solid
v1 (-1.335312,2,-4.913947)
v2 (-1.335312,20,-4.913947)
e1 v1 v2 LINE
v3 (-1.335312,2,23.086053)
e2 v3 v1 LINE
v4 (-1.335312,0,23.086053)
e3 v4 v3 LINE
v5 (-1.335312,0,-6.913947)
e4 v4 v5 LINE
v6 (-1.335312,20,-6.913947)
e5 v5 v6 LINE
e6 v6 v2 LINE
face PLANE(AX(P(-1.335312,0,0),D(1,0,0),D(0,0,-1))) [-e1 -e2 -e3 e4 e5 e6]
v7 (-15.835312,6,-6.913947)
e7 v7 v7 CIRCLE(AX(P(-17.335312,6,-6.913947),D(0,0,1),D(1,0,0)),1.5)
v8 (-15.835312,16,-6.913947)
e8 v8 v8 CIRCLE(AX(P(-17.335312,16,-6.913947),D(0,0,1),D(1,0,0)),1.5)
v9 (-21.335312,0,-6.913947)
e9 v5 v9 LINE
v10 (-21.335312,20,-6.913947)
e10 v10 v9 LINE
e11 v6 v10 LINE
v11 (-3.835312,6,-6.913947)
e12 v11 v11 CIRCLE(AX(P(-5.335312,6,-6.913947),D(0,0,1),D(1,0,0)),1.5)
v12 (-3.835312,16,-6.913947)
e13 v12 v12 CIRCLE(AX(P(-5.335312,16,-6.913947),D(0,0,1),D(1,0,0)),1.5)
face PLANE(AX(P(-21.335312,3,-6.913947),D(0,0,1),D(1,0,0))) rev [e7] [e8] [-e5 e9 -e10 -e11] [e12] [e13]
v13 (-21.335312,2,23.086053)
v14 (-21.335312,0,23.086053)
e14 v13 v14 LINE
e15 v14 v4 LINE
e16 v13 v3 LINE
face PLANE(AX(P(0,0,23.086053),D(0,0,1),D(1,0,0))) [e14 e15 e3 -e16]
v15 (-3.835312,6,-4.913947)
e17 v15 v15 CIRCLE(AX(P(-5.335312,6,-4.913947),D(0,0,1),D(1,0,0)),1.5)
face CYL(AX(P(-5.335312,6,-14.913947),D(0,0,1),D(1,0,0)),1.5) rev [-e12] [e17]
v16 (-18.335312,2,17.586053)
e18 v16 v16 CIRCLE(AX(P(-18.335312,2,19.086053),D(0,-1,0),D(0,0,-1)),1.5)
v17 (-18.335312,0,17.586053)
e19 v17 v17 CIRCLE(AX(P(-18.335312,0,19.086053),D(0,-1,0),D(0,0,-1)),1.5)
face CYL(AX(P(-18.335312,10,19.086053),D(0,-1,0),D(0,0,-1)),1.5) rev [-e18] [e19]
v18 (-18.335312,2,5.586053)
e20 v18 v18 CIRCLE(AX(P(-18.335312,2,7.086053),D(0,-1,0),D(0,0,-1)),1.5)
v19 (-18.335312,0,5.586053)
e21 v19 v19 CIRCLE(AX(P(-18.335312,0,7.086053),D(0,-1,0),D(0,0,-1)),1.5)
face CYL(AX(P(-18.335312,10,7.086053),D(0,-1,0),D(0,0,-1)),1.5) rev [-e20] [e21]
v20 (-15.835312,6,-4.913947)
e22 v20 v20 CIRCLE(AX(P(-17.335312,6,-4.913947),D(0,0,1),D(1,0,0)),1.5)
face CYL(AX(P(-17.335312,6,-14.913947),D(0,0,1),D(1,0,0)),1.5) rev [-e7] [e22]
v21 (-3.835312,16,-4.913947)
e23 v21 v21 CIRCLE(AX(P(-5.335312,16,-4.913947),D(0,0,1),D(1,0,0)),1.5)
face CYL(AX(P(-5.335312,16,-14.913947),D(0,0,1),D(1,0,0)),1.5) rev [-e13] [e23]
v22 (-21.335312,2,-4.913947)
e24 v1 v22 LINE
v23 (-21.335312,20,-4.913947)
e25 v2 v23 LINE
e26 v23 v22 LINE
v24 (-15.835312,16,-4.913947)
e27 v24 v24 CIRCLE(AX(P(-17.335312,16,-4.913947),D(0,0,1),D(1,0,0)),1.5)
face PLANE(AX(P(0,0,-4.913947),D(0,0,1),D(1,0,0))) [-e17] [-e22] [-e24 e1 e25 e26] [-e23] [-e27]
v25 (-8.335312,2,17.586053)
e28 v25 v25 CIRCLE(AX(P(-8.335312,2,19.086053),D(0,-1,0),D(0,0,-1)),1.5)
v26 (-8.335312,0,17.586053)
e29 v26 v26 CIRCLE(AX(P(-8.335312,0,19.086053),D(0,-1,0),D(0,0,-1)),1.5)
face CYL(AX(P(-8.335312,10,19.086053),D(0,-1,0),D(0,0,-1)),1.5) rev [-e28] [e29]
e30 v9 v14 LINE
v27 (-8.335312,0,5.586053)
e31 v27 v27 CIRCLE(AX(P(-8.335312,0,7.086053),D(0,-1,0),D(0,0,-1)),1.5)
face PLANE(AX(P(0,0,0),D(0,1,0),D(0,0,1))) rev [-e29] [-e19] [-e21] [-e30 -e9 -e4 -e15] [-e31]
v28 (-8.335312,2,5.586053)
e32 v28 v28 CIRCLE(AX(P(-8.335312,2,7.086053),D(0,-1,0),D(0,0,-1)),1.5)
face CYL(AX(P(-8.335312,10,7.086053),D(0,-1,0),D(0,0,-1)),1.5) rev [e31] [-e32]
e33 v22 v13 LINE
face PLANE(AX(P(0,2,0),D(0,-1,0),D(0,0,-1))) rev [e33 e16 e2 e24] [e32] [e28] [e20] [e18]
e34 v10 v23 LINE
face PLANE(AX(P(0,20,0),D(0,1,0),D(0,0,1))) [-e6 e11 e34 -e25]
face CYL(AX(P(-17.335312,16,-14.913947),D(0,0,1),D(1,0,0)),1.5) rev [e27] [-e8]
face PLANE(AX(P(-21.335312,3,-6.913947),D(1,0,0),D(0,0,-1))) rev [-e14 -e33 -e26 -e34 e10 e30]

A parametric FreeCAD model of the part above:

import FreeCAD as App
import Part
import Sketcher
Q = App.Units.Quantity

doc = App.newDocument("Part")
body = doc.addObject("PartDesign::Body", "Body")

# Sketch on XZ plane
sketch1 = body.newObject("Sketcher::SketchObject", "Sketch")
sketch1.AttachmentSupport = (doc.getObject("XZ_Plane"), [""])
sketch1.MapMode = "FlatFace"
sketch1.addGeometry([
    Part.LineSegment(App.Vector(-21, -7, 0), App.Vector(-21, 33, 0)),
    Part.LineSegment(App.Vector(-21, 33, 0), App.Vector(9, 33, 0)),
    Part.LineSegment(App.Vector(9, 33, 0), App.Vector(9, -7, 0)),
    Part.LineSegment(App.Vector(9, -7, 0), App.Vector(-21, -7, 0)),
], False)
sketch1.addConstraint([
    Sketcher.Constraint("Coincident", 0, 2, 1, 1),
    Sketcher.Constraint("Coincident", 1, 2, 2, 1),
    Sketcher.Constraint("Coincident", 2, 2, 3, 1),
    Sketcher.Constraint("Coincident", 3, 2, 0, 1),
    Sketcher.Constraint("Vertical", 0),
    Sketcher.Constraint("Horizontal", 1),
    Sketcher.Constraint("Vertical", 2),
    Sketcher.Constraint("Horizontal", 3),
    Sketcher.Constraint("DistanceX", 1, 1, 1, 2, Q("30 mm")),
    Sketcher.Constraint("DistanceY", 0, 1, 0, 2, Q("40 mm")),
    Sketcher.Constraint("DistanceX", 0, 2, -1, 1, Q("21.335312 mm")),
    Sketcher.Constraint("DistanceY", -1, 1, 0, 2, Q("33.086053 mm")),
])
pad1 = body.newObject("PartDesign::Pad", "Pad")
pad1.Profile = sketch1
pad1.Length = 3
pad1.Reversed = True

# Sketch on XZ plane
sketch2 = body.newObject("Sketcher::SketchObject", "Sketch001")
sketch2.AttachmentSupport = (doc.getObject("XZ_Plane"), [""])
sketch2.MapMode = "FlatFace"
sketch2.AttachmentOffset = App.Placement(App.Vector(0, 0, -3), App.Rotation())
sketch2.addGeometry([
    Part.LineSegment(App.Vector(-21.3, -6.9, 0), App.Vector(-21.3, -3.9, 0)),
    Part.LineSegment(App.Vector(-21.3, -3.9, 0), App.Vector(8.7, -3.9, 0)),
    Part.LineSegment(App.Vector(8.7, -3.9, 0), App.Vector(8.7, -6.9, 0)),
    Part.LineSegment(App.Vector(8.7, -6.9, 0), App.Vector(-21.3, -6.9, 0)),
], False)
sketch2.addConstraint([
    Sketcher.Constraint("Coincident", 0, 2, 1, 1),
    Sketcher.Constraint("Coincident", 1, 2, 2, 1),
    Sketcher.Constraint("Coincident", 2, 2, 3, 1),
    Sketcher.Constraint("Coincident", 3, 2, 0, 1),
    Sketcher.Constraint("Vertical", 0),
    Sketcher.Constraint("Horizontal", 1),
    Sketcher.Constraint("Vertical", 2),
    Sketcher.Constraint("Horizontal", 3),
    Sketcher.Constraint("DistanceX", 1, 1, 1, 2, Q("30 mm")),
    Sketcher.Constraint("DistanceY", 0, 1, 0, 2, Q("3 mm")),
    Sketcher.Constraint("DistanceX", 0, 2, -1, 1, Q("21.335312 mm")),
    Sketcher.Constraint("DistanceY", 0, 2, -1, 1, Q("3.913947 mm")),
])
pad2 = body.newObject("PartDesign::Pad", "Pad001")
pad2.Profile = sketch2
pad2.Length = 17
pad2.Reversed = True

# Sketch on YZ plane
sketch3 = body.newObject("Sketcher::SketchObject", "Sketch002")
sketch3.AttachmentSupport = (doc.getObject("YZ_Plane"), [""])
sketch3.MapMode = "FlatFace"
sketch3.AttachmentOffset = App.Placement(App.Vector(0, 0, 8.664688), App.Rotation())
sketch3.addGeometry([
    Part.LineSegment(App.Vector(20, -6.9, 0), App.Vector(20, -3.9, 0)),  # 0
    Part.LineSegment(App.Vector(20, -3.9, 0), App.Vector(3, -3.9, 0)),  # 1
    Part.LineSegment(App.Vector(3, -3.9, 0), App.Vector(3, 33.1, 0)),  # 2
    Part.LineSegment(App.Vector(3, 33.1, 0), App.Vector(0, 33.1, 0)),  # 3
    Part.LineSegment(App.Vector(0, 33.1, 0), App.Vector(0, -6.9, 0)),  # 4
    Part.LineSegment(App.Vector(0, -6.9, 0), App.Vector(20, -6.9, 0)),  # 5
], False)
sketch3.addConstraint([
    Sketcher.Constraint("Coincident", 0, 2, 1, 1),
    Sketcher.Constraint("Coincident", 1, 2, 2, 1),
    Sketcher.Constraint("Coincident", 2, 2, 3, 1),
    Sketcher.Constraint("Coincident", 3, 2, 4, 1),
    Sketcher.Constraint("Coincident", 4, 2, 5, 1),
    Sketcher.Constraint("Coincident", 5, 2, 0, 1),
    Sketcher.Constraint("Vertical", 0),
    Sketcher.Constraint("Horizontal", 1),
    Sketcher.Constraint("Vertical", 2),
    Sketcher.Constraint("Horizontal", 3),
    Sketcher.Constraint("Vertical", 4),
    Sketcher.Constraint("Horizontal", 5),
    Sketcher.Constraint("PointOnObject", 3, 2, -2),
    Sketcher.Constraint("Equal", 3, 0),
    Sketcher.Constraint("DistanceX", 1, 2, 1, 1, Q("17 mm")),
    Sketcher.Constraint("DistanceX", 3, 2, 3, 1, Q("3 mm")),
    Sketcher.Constraint("DistanceY", 2, 1, 2, 2, Q("37 mm")),
    Sketcher.Constraint("DistanceY", 0, 2, -1, 1, Q("3.913947 mm")),
])
pocket1 = body.newObject("PartDesign::Pocket", "Pocket")
pocket1.Profile = sketch3
pocket1.Length = 10

# Sketch on XY plane
sketch4 = body.newObject("Sketcher::SketchObject", "Sketch003")
sketch4.AttachmentSupport = (doc.getObject("XY_Plane"), [""])
sketch4.MapMode = "FlatFace"
sketch4.AttachmentOffset = App.Placement(App.Vector(0, 0, 33.086053), App.Rotation())
sketch4.addGeometry([
    Part.LineSegment(App.Vector(-21.3, 3, 0), App.Vector(-21.3, 0, 0)),
    Part.LineSegment(App.Vector(-21.3, 0, 0), App.Vector(-1.3, 0, 0)),
    Part.LineSegment(App.Vector(-1.3, 0, 0), App.Vector(-1.3, 3, 0)),
    Part.LineSegment(App.Vector(-1.3, 3, 0), App.Vector(-21.3, 3, 0)),
], False)
sketch4.addConstraint([
    Sketcher.Constraint("Coincident", 0, 2, 1, 1),
    Sketcher.Constraint("Coincident", 1, 2, 2, 1),
    Sketcher.Constraint("Coincident", 2, 2, 3, 1),
    Sketcher.Constraint("Coincident", 3, 2, 0, 1),
    Sketcher.Constraint("Vertical", 0),
    Sketcher.Constraint("Horizontal", 1),
    Sketcher.Constraint("Vertical", 2),
    Sketcher.Constraint("Horizontal", 3),
    Sketcher.Constraint("PointOnObject", 0, 2, -1),
    Sketcher.Constraint("DistanceX", 1, 1, 1, 2, Q("20 mm")),
    Sketcher.Constraint("DistanceY", 0, 2, 0, 1, Q("3 mm")),
    Sketcher.Constraint("DistanceX", 0, 2, -1, 1, Q("21.335312 mm")),
])
pocket2 = body.newObject("PartDesign::Pocket", "Pocket001")
pocket2.Profile = sketch4
pocket2.Length = 10

# Sketch on XY plane
sketch5 = body.newObject("Sketcher::SketchObject", "Sketch004")
sketch5.AttachmentSupport = (doc.getObject("XY_Plane"), [""])
sketch5.MapMode = "FlatFace"
sketch5.AttachmentOffset = App.Placement(App.Vector(0, 0, -3.913947), App.Rotation())
sketch5.addGeometry([
    Part.LineSegment(App.Vector(-21, 20, 0), App.Vector(-21, 3, 0)),
    Part.LineSegment(App.Vector(-21, 3, 0), App.Vector(-1, 3, 0)),
    Part.LineSegment(App.Vector(-1, 3, 0), App.Vector(-1, 20, 0)),
    Part.LineSegment(App.Vector(-1, 20, 0), App.Vector(-21, 20, 0)),
], False)
sketch5.addConstraint([
    Sketcher.Constraint("Coincident", 0, 2, 1, 1),
    Sketcher.Constraint("Coincident", 1, 2, 2, 1),
    Sketcher.Constraint("Coincident", 2, 2, 3, 1),
    Sketcher.Constraint("Coincident", 3, 2, 0, 1),
    Sketcher.Constraint("Vertical", 0),
    Sketcher.Constraint("Horizontal", 1),
    Sketcher.Constraint("Vertical", 2),
    Sketcher.Constraint("Horizontal", 3),
    Sketcher.Constraint("DistanceX", 1, 1, 1, 2, Q("20 mm")),
    Sketcher.Constraint("DistanceY", 0, 2, 0, 1, Q("17 mm")),
    Sketcher.Constraint("DistanceY", -1, 1, 0, 2, Q("3 mm")),
    Sketcher.Constraint("DistanceX", 0, 2, -1, 1, Q("21.335312 mm")),
])
pocket3 = body.newObject("PartDesign::Pocket", "Pocket002")
pocket3.Profile = sketch5
pocket3.Length = 1

# Sketch on XZ plane
sketch6 = body.newObject("Sketcher::SketchObject", "Sketch005")
sketch6.AttachmentSupport = (doc.getObject("XZ_Plane"), [""])
sketch6.MapMode = "FlatFace"
sketch6.AttachmentOffset = App.Placement(App.Vector(0, 0, -3), App.Rotation())
sketch6.addGeometry([
    Part.LineSegment(App.Vector(-21, -5, 0), App.Vector(-21, 23, 0)),
    Part.LineSegment(App.Vector(-21, 23, 0), App.Vector(-1, 23, 0)),
    Part.LineSegment(App.Vector(-1, 23, 0), App.Vector(-1, -5, 0)),
    Part.LineSegment(App.Vector(-1, -5, 0), App.Vector(-21, -5, 0)),
], False)
sketch6.addConstraint([
    Sketcher.Constraint("Coincident", 0, 2, 1, 1),
    Sketcher.Constraint("Coincident", 1, 2, 2, 1),
    Sketcher.Constraint("Coincident", 2, 2, 3, 1),
    Sketcher.Constraint("Coincident", 3, 2, 0, 1),
    Sketcher.Constraint("Vertical", 0),
    Sketcher.Constraint("Horizontal", 1),
    Sketcher.Constraint("Vertical", 2),
    Sketcher.Constraint("Horizontal", 3),
    Sketcher.Constraint("DistanceX", 1, 1, 1, 2, Q("20 mm")),
    Sketcher.Constraint("DistanceY", 0, 1, 0, 2, Q("28 mm")),
    Sketcher.Constraint("DistanceX", 0, 2, -1, 1, Q("21.335312 mm")),
    Sketcher.Constraint("DistanceY", -1, 1, 0, 2, Q("23.086053 mm")),
])
pocket4 = body.newObject("PartDesign::Pocket", "Pocket003")
pocket4.Profile = sketch6
pocket4.Length = 1
pocket4.Reversed = True

# Sketch on XZ plane
sketch7 = body.newObject("Sketcher::SketchObject", "Sketch006")
sketch7.AttachmentSupport = (doc.getObject("XZ_Plane"), [""])
sketch7.MapMode = "FlatFace"
sketch7.addGeometry([
    Part.Circle(App.Vector(-8.3, 7.1, 0), App.Vector(0, 0, 1), 1.5),
    Part.Circle(App.Vector(-8.3, 19.1, 0), App.Vector(0, 0, 1), 1.5),
    Part.Circle(App.Vector(-18.3, 7.1, 0), App.Vector(0, 0, 1), 1.5),
    Part.Circle(App.Vector(-18.3, 19.1, 0), App.Vector(0, 0, 1), 1.5),
], False)
sketch7.addConstraint([
    Sketcher.Constraint("Equal", 0, 1),
    Sketcher.Constraint("Equal", 1, 2),
    Sketcher.Constraint("Equal", 2, 3),
    Sketcher.Constraint("Horizontal", 0, 3, 2, 3),
    Sketcher.Constraint("Horizontal", 1, 3, 3, 3),
    Sketcher.Constraint("Vertical", 0, 3, 1, 3),
    Sketcher.Constraint("Vertical", 2, 3, 3, 3),
    Sketcher.Constraint("Diameter", 0, Q("3 mm")),
    Sketcher.Constraint("DistanceY", 0, 3, 1, 3, Q("12 mm")),
    Sketcher.Constraint("DistanceX", 2, 3, 0, 3, Q("10 mm")),
    Sketcher.Constraint("DistanceX", 0, 3, -1, 1, Q("8.335312 mm")),
    Sketcher.Constraint("DistanceY", -1, 1, 0, 3, Q("7.086053 mm")),
])
pocket5 = body.newObject("PartDesign::Pocket", "Pocket004")
pocket5.Profile = sketch7
pocket5.Length = 10

# Sketch on XY plane
sketch8 = body.newObject("Sketcher::SketchObject", "Sketch007")
sketch8.AttachmentSupport = (doc.getObject("XY_Plane"), [""])
sketch8.MapMode = "FlatFace"
sketch8.AttachmentOffset = App.Placement(App.Vector(0, 0, -4.913947), App.Rotation())
sketch8.addGeometry([
    Part.Circle(App.Vector(-5.3, 6, 0), App.Vector(0, 0, 1), 1.5),
    Part.Circle(App.Vector(-17.3, 6, 0), App.Vector(0, 0, 1), 1.5),
    Part.Circle(App.Vector(-5.3, 16, 0), App.Vector(0, 0, 1), 1.5),
    Part.Circle(App.Vector(-17.3, 16, 0), App.Vector(0, 0, 1), 1.5),
], False)
sketch8.addConstraint([
    Sketcher.Constraint("Equal", 0, 1),
    Sketcher.Constraint("Equal", 1, 2),
    Sketcher.Constraint("Equal", 2, 3),
    Sketcher.Constraint("Horizontal", 0, 3, 1, 3),
    Sketcher.Constraint("Horizontal", 2, 3, 3, 3),
    Sketcher.Constraint("Vertical", 0, 3, 2, 3),
    Sketcher.Constraint("Vertical", 1, 3, 3, 3),
    Sketcher.Constraint("Diameter", 0, Q("3 mm")),
    Sketcher.Constraint("DistanceY", -1, 1, 0, 3, Q("6 mm")),
    Sketcher.Constraint("DistanceY", -1, 1, 2, 3, Q("16 mm")),
    Sketcher.Constraint("DistanceX", 1, 3, 0, 3, Q("12 mm")),
    Sketcher.Constraint("DistanceX", 0, 3, -1, 1, Q("5.335312 mm")),
])
pocket6 = body.newObject("PartDesign::Pocket", "Pocket005")
pocket6.Profile = sketch8
pocket6.Length = 10

doc.recompute()
